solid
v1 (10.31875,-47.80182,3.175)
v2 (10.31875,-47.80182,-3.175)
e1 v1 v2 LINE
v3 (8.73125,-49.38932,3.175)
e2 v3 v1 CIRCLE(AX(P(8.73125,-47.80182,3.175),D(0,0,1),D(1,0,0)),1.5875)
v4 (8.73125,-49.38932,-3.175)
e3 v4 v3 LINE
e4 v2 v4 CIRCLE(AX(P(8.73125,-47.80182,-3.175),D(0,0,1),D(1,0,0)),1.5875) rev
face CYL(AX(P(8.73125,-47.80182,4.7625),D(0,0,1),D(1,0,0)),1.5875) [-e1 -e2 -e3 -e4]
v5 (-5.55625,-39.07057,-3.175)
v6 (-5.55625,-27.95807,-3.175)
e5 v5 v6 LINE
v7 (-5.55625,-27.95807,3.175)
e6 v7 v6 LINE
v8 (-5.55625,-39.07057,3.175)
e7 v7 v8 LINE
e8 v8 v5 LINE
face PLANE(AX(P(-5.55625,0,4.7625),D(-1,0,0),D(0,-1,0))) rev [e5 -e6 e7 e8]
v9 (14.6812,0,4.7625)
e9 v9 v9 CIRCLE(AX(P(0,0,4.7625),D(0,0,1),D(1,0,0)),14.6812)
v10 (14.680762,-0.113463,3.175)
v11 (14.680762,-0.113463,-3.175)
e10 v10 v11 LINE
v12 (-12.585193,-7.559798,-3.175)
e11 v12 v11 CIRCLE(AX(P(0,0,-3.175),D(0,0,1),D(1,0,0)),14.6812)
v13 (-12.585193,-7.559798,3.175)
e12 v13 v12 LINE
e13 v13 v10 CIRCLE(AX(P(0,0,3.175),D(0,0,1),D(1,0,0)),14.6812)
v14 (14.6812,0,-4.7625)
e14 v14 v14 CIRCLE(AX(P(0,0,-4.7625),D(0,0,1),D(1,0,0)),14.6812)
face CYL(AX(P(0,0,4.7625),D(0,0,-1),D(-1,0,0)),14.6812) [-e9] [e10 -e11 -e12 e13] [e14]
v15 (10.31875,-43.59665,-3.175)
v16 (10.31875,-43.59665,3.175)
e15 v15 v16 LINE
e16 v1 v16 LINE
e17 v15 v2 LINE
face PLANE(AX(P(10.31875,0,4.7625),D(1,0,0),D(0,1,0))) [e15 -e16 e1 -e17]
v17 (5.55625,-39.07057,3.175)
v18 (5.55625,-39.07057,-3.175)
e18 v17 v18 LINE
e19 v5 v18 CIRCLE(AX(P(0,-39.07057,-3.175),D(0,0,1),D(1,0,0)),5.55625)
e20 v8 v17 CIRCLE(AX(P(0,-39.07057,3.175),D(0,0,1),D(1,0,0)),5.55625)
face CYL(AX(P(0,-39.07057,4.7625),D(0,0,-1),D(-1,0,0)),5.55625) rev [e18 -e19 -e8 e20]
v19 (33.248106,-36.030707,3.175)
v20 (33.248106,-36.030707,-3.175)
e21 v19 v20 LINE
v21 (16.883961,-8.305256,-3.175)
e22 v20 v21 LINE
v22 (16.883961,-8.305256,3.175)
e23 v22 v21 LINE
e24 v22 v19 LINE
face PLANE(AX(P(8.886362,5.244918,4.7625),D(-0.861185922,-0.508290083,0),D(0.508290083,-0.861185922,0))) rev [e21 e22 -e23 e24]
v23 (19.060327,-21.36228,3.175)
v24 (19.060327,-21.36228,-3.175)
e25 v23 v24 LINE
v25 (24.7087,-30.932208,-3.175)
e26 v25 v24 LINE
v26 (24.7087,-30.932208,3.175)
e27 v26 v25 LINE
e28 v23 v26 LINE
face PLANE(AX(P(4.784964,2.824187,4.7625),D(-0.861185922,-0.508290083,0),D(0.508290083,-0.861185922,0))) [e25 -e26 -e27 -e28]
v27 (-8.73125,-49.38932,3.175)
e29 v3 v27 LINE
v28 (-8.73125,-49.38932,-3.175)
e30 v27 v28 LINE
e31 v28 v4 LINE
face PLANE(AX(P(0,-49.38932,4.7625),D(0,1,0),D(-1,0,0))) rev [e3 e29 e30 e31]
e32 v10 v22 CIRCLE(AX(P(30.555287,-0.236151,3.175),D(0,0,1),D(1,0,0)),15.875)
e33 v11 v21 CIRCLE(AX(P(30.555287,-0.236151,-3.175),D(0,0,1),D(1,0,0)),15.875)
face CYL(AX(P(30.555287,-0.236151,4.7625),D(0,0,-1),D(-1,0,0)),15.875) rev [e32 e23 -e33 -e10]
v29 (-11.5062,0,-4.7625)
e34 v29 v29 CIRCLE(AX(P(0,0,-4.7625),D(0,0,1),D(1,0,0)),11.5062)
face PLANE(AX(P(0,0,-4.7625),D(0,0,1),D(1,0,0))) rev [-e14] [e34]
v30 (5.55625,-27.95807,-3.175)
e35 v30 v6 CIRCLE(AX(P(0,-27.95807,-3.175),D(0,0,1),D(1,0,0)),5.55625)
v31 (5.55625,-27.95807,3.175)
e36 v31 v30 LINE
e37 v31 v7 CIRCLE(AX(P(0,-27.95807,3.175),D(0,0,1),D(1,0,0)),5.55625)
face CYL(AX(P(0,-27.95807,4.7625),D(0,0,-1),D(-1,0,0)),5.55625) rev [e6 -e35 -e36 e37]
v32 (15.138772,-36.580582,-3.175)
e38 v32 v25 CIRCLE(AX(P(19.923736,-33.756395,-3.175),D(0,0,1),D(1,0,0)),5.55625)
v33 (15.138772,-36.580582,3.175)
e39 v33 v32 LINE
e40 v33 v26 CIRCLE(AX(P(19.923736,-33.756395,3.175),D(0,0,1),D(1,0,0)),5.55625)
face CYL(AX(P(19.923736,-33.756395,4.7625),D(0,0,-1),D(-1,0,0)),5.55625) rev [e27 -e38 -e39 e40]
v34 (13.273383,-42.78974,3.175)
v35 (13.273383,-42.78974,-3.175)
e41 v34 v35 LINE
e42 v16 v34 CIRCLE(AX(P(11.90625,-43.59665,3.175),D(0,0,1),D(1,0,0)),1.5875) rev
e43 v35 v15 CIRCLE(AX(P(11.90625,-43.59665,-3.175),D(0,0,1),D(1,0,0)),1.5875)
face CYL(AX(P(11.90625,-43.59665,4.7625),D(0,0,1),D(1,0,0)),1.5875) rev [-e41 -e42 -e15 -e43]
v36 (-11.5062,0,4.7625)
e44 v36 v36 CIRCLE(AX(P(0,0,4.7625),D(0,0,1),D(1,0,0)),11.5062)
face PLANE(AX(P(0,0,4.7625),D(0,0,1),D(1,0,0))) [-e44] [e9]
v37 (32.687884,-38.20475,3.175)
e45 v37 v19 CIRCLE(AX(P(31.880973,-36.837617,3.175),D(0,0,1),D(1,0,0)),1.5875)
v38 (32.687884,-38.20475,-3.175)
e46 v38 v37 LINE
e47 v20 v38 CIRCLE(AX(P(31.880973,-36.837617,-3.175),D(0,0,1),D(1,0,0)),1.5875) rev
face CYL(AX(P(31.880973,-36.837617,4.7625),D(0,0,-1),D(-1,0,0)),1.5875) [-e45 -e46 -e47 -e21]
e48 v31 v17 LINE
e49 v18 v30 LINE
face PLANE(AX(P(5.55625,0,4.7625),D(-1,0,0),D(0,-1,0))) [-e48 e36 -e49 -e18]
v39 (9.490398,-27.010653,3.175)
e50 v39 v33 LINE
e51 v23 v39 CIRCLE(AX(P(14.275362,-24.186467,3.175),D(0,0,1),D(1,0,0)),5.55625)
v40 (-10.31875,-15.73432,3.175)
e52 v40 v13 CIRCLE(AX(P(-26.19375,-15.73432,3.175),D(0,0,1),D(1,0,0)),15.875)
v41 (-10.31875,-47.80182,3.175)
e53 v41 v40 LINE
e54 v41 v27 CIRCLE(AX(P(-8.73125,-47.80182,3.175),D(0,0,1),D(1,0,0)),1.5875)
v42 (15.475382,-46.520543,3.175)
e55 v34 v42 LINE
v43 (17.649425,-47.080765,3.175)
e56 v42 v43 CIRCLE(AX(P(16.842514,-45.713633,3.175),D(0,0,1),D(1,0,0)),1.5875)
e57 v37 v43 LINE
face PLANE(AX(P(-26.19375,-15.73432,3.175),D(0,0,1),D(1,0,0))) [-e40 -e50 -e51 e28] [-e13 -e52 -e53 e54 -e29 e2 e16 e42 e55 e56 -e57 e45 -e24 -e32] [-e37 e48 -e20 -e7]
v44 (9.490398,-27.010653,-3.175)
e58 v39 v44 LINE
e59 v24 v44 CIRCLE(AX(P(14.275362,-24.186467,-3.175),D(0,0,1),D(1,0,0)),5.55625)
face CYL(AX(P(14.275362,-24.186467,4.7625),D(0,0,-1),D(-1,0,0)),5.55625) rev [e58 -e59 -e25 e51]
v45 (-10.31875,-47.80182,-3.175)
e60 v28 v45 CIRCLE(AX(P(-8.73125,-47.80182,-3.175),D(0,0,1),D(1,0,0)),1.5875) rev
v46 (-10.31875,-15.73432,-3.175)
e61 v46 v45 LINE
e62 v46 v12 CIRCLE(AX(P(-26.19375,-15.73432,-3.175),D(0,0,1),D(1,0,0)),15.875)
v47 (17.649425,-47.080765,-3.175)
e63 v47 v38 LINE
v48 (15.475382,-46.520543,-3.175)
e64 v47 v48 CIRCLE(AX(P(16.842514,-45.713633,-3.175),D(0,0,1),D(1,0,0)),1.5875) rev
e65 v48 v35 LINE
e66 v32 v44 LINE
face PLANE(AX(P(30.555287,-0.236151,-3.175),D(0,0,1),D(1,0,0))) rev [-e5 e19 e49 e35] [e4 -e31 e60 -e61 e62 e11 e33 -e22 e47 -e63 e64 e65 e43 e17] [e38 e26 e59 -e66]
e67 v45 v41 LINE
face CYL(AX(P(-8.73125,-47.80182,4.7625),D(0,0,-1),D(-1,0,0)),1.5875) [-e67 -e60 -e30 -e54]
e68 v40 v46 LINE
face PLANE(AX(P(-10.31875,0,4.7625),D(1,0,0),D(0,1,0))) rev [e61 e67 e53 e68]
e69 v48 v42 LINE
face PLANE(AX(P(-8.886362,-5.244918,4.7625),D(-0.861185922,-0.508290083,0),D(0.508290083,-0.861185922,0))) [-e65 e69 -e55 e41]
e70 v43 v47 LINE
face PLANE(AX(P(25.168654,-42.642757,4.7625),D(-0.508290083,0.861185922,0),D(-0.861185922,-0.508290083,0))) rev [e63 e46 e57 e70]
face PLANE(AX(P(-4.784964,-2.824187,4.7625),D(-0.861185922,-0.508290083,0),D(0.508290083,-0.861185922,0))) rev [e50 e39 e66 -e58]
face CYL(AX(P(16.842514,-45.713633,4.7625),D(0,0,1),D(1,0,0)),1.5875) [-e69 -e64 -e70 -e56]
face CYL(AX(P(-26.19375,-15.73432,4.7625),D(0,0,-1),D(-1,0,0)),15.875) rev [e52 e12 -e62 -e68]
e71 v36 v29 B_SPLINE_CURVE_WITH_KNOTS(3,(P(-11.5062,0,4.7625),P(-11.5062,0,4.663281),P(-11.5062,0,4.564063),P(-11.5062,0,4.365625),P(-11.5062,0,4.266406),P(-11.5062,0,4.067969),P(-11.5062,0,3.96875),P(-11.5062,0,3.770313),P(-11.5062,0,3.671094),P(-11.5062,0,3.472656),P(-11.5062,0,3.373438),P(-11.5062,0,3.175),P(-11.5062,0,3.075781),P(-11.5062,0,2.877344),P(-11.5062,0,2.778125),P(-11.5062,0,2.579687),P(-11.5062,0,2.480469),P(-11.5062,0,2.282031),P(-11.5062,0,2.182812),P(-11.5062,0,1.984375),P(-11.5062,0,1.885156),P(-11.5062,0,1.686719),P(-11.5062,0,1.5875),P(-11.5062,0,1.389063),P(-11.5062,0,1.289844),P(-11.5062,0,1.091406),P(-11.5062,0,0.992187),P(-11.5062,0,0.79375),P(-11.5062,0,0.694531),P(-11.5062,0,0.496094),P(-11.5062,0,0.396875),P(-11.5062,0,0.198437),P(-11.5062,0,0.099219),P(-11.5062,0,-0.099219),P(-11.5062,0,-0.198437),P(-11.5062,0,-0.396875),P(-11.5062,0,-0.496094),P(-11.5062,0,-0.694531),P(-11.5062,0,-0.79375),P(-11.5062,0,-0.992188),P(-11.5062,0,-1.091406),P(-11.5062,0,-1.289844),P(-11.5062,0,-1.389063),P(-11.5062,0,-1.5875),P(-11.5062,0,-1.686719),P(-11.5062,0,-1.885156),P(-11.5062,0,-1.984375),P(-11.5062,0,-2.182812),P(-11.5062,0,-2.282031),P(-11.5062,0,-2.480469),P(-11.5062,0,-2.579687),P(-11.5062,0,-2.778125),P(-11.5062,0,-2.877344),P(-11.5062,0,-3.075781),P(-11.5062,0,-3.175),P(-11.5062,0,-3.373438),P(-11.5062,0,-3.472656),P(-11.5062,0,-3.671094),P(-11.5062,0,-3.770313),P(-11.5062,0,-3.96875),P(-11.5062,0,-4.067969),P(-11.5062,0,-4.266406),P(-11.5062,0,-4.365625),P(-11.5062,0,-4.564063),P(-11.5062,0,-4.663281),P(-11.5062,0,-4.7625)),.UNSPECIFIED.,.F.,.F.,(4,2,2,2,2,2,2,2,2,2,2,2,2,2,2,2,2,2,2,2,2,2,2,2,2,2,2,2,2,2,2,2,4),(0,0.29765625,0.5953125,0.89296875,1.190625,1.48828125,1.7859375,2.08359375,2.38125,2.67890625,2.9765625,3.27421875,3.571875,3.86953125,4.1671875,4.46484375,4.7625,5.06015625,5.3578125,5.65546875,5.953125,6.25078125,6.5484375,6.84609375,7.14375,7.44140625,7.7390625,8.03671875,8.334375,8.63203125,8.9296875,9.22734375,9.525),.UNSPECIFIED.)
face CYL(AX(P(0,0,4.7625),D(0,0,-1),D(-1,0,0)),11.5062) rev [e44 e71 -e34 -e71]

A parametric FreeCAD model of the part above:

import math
import FreeCAD as App
import Part
import Sketcher
from FreeCAD import Vector
Q = App.Units.Quantity


def edges_at(feature, points):
    """Names of the edges that pass closest to the given points."""
    edges = feature.Shape.Edges
    near = lambda p: min(range(len(edges)), key=lambda i: edges[i].distToShape(Part.Vertex(*p))[0])
    return sorted({f"Edge{near(p) + 1}" for p in points})

doc = App.newDocument("Part")
body = doc.addObject("PartDesign::Body", "Body")

# Sketch on XY plane
sketch1 = body.newObject("Sketcher::SketchObject", "Sketch")
sketch1.AttachmentSupport = (doc.getObject("XY_Plane"), [""])
sketch1.MapMode = "FlatFace"
sketch1.addGeometry([
    Part.ArcOfCircle(Part.Circle(Vector(-26.19375, -15.73432, 0), Vector(0, 0, 1), 15.875), math.radians(0), math.radians(30.992811)),  # 0
    Part.LineSegment(Vector(-10.31875, -15.73432, 0), Vector(-10.31875, -49.38932, 0)),  # 1
    Part.LineSegment(Vector(-10.31875, -49.38932, 0), Vector(10.31875, -49.38932, 0)),  # 2
    Part.LineSegment(Vector(10.31875, -49.38932, 0), Vector(10.31875, -37.783763, 0)),  # 3
    Part.LineSegment(Vector(10.31875, -37.783763, 0), Vector(16.282292, -47.887676, 0)),  # 4
    Part.LineSegment(Vector(16.282292, -47.887676, 0), Vector(34.055017, -37.397839, 0)),  # 5
    Part.LineSegment(Vector(34.055017, -37.397839, 0), Vector(16.883961, -8.305256, 0)),  # 6
    Part.ArcOfCircle(Part.Circle(Vector(30.555287, -0.236151, 0), Vector(0, 0, 1), 15.875), math.radians(179.557189), math.radians(210.55)),  # 7
    Part.ArcOfCircle(Part.Circle(Vector(0, 0, 0), Vector(0, 0, 1), 14.6812), math.radians(-0.442811), math.radians(210.992811)),  # 8
    Part.LineSegment(Vector(5.55625, -27.95807, 0), Vector(5.55625, -39.07057, 0)),  # 9
    Part.ArcOfCircle(Part.Circle(Vector(0, -39.07057, 0), Vector(0, 0, 1), 5.55625), math.radians(180), math.radians(360)),  # 10
    Part.LineSegment(Vector(-5.55625, -39.07057, 0), Vector(-5.55625, -27.95807, 0)),  # 11
    Part.ArcOfCircle(Part.Circle(Vector(0, -27.95807, 0), Vector(0, 0, 1), 5.55625), math.radians(0), math.radians(180)),  # 12
    Part.LineSegment(Vector(19.060327, -21.36228, 0), Vector(24.7087, -30.932208, 0)),  # 13
    Part.ArcOfCircle(Part.Circle(Vector(19.923736, -33.756395, 0), Vector(0, 0, 1), 5.55625), math.radians(-149.45), math.radians(30.55)),  # 14
    Part.LineSegment(Vector(15.138772, -36.580582, 0), Vector(9.490398, -27.010653, 0)),  # 15
    Part.ArcOfCircle(Part.Circle(Vector(14.275362, -24.186467, 0), Vector(0, 0, 1), 5.55625), math.radians(30.55), math.radians(210.55)),  # 16
    Part.Circle(Vector(0, 0, 0), Vector(0, 0, 1), 11.5062),  # 17
], False)
sketch1.addConstraint([
    Sketcher.Constraint("Tangent", 0, 1, 1, 1),
    Sketcher.Constraint("Coincident", 1, 2, 2, 1),
    Sketcher.Constraint("Coincident", 2, 2, 3, 1),
    Sketcher.Constraint("Coincident", 3, 2, 4, 1),
    Sketcher.Constraint("Coincident", 4, 2, 5, 1),
    Sketcher.Constraint("Coincident", 5, 2, 6, 1),
    Sketcher.Constraint("Tangent", 6, 2, 7, 2),
    Sketcher.Constraint("Tangent", 7, 1, 8, 1),
    Sketcher.Constraint("Tangent", 8, 2, 0, 2),
    Sketcher.Constraint("Tangent", 9, 2, 10, 2),
    Sketcher.Constraint("Tangent", 10, 1, 11, 1),
    Sketcher.Constraint("Tangent", 11, 2, 12, 2),
    Sketcher.Constraint("Tangent", 12, 1, 9, 1),
    Sketcher.Constraint("Tangent", 13, 2, 14, 2),
    Sketcher.Constraint("Tangent", 14, 1, 15, 1),
    Sketcher.Constraint("Tangent", 15, 2, 16, 2),
    Sketcher.Constraint("Tangent", 16, 1, 13, 1),
    Sketcher.Constraint("Vertical", 1),
    Sketcher.Constraint("Horizontal", 2),
    Sketcher.Constraint("Vertical", 3),
    Sketcher.Constraint("Vertical", 9),
    Sketcher.Constraint("Vertical", 11),
    Sketcher.Constraint("Coincident", 8, 3, -1, 1),
    Sketcher.Constraint("Coincident", 17, 3, -1, 1),
    Sketcher.Constraint("Equal", 0, 7),
    Sketcher.Constraint("Equal", 12, 14),
    Sketcher.Constraint("Equal", 14, 16),
    Sketcher.Constraint("PointOnObject", 10, 3, -2),
    Sketcher.Constraint("Perpendicular", 4, 5),
    Sketcher.Constraint("Perpendicular", 5, 6),
    Sketcher.Constraint("Parallel", 6, 13),
    Sketcher.Constraint("Diameter", 17, Q("0.906 in")),
    Sketcher.Constraint("Radius", 0, Q("0.625 in")),
    Sketcher.Constraint("Radius", 8, Q("0.578 in")),
    Sketcher.Constraint("Radius", 10, Q("0.21875 in")),
    Sketcher.Constraint("Distance", 6, Q("1.33 in")),
    Sketcher.Constraint("DistanceX", 2, 1, 2, 2, Q("0.8125 in")),
    Sketcher.Constraint("DistanceY", 1, 2, 1, 1, Q("1.325 in")),
    Sketcher.Constraint("DistanceY", 9, 2, 9, 1, Q("0.4375 in")),
    Sketcher.Constraint("Angle", 4, Q("-59.45 deg")),
    Sketcher.Constraint("Distance", 5, Q("0.8125 in")),
    Sketcher.Constraint("Distance", 13, Q("0.4375 in")),
    Sketcher.Constraint("DistanceX", 0, 3, -1, 1, Q("1.03125 in")),
    Sketcher.Constraint("DistanceY", 1, 2, 10, 3, Q("0.40625 in")),
    Sketcher.Constraint("DistanceY", 12, 1, 15, 2, Q("0.0372999 in")),
    Sketcher.Constraint("DistanceX", -1, 1, 13, 2, 24.7087),
    Sketcher.Constraint("DistanceY", 3, 1, 3, 2, 11.605556),
])
pad1 = body.newObject("PartDesign::Pad", "Pad")
pad1.Profile = sketch1
pad1.Length = Q("0.375 in")
pad1.Midplane = True

# Sketch on XY plane
sketch2 = body.newObject("Sketcher::SketchObject", "Sketch001")
sketch2.AttachmentSupport = (doc.getObject("XY_Plane"), [""])
sketch2.MapMode = "FlatFace"
sketch2.AttachmentOffset = App.Placement(Vector(0, 0, 0.1875 * 25.4), App.Rotation())
sketch2.addGeometry([
    Part.ArcOfCircle(Part.Circle(Vector(0, 0, 0), Vector(0, 0, 1), 14.6812), math.radians(-149.007189), math.radians(-0.442811)),  # 0
    Part.ArcOfCircle(Part.Circle(Vector(-26.19375, -15.73432, 0), Vector(0, 0, 1), 15.875), math.radians(0), math.radians(30.992811)),  # 1
    Part.LineSegment(Vector(-10.31875, -15.73432, 0), Vector(-10.31875, -49.38932, 0)),  # 2
    Part.LineSegment(Vector(-10.31875, -49.38932, 0), Vector(10.31875, -49.38932, 0)),  # 3
    Part.LineSegment(Vector(10.31875, -49.38932, 0), Vector(10.31875, -37.783763, 0)),  # 4
    Part.LineSegment(Vector(10.31875, -37.783763, 0), Vector(16.282292, -47.887676, 0)),  # 5
    Part.LineSegment(Vector(16.282292, -47.887676, 0), Vector(34.055017, -37.397839, 0)),  # 6
    Part.LineSegment(Vector(34.055017, -37.397839, 0), Vector(16.883961, -8.305256, 0)),  # 7
    Part.ArcOfCircle(Part.Circle(Vector(30.555287, -0.236151, 0), Vector(0, 0, 1), 15.875), math.radians(179.557189), math.radians(210.55)),  # 8
    Part.LineSegment(Vector(5.55625, -27.95807, 0), Vector(5.55625, -39.07057, 0)),  # 9
    Part.ArcOfCircle(Part.Circle(Vector(0, -39.07057, 0), Vector(0, 0, 1), 5.55625), math.radians(180), math.radians(360)),  # 10
    Part.LineSegment(Vector(-5.55625, -39.07057, 0), Vector(-5.55625, -27.95807, 0)),  # 11
    Part.ArcOfCircle(Part.Circle(Vector(0, -27.95807, 0), Vector(0, 0, 1), 5.55625), math.radians(0), math.radians(180)),  # 12
    Part.LineSegment(Vector(19.060327, -21.36228, 0), Vector(24.7087, -30.932208, 0)),  # 13
    Part.ArcOfCircle(Part.Circle(Vector(19.923736, -33.756395, 0), Vector(0, 0, 1), 5.55625), math.radians(-149.45), math.radians(30.55)),  # 14
    Part.LineSegment(Vector(15.138772, -36.580582, 0), Vector(9.490398, -27.010653, 0)),  # 15
    Part.ArcOfCircle(Part.Circle(Vector(14.275362, -24.186467, 0), Vector(0, 0, 1), 5.55625), math.radians(30.55), math.radians(210.55)),  # 16
], False)
sketch2.addConstraint([
    Sketcher.Constraint("Tangent", 0, 1, 1, 2),
    Sketcher.Constraint("Tangent", 1, 1, 2, 1),
    Sketcher.Constraint("Coincident", 2, 2, 3, 1),
    Sketcher.Constraint("Coincident", 3, 2, 4, 1),
    Sketcher.Constraint("Coincident", 4, 2, 5, 1),
    Sketcher.Constraint("Coincident", 5, 2, 6, 1),
    Sketcher.Constraint("Coincident", 6, 2, 7, 1),
    Sketcher.Constraint("Tangent", 7, 2, 8, 2),
    Sketcher.Constraint("Tangent", 8, 1, 0, 2),
    Sketcher.Constraint("Tangent", 9, 2, 10, 2),
    Sketcher.Constraint("Tangent", 10, 1, 11, 1),
    Sketcher.Constraint("Tangent", 11, 2, 12, 2),
    Sketcher.Constraint("Tangent", 12, 1, 9, 1),
    Sketcher.Constraint("Tangent", 13, 2, 14, 2),
    Sketcher.Constraint("Tangent", 14, 1, 15, 1),
    Sketcher.Constraint("Tangent", 15, 2, 16, 2),
    Sketcher.Constraint("Tangent", 16, 1, 13, 1),
    Sketcher.Constraint("Vertical", 2),
    Sketcher.Constraint("Horizontal", 3),
    Sketcher.Constraint("Vertical", 4),
    Sketcher.Constraint("Vertical", 9),
    Sketcher.Constraint("Vertical", 11),
    Sketcher.Constraint("Coincident", 0, 3, -1, 1),
    Sketcher.Constraint("Equal", 1, 8),
    Sketcher.Constraint("Equal", 12, 14),
    Sketcher.Constraint("Equal", 14, 16),
    Sketcher.Constraint("PointOnObject", 10, 3, -2),
    Sketcher.Constraint("Perpendicular", 5, 6),
    Sketcher.Constraint("Perpendicular", 6, 7),
    Sketcher.Constraint("Parallel", 7, 13),
    Sketcher.Constraint("Radius", 0, Q("0.578 in")),
    Sketcher.Constraint("Radius", 1, Q("0.625 in")),
    Sketcher.Constraint("Radius", 10, Q("0.21875 in")),
    Sketcher.Constraint("Distance", 7, Q("1.33 in")),
    Sketcher.Constraint("DistanceX", 3, 1, 3, 2, Q("0.8125 in")),
    Sketcher.Constraint("DistanceY", 2, 2, 2, 1, Q("1.325 in")),
    Sketcher.Constraint("DistanceY", 9, 2, 9, 1, Q("0.4375 in")),
    Sketcher.Constraint("Angle", 5, Q("-59.45 deg")),
    Sketcher.Constraint("Distance", 6, Q("0.8125 in")),
    Sketcher.Constraint("Distance", 13, Q("0.4375 in")),
    Sketcher.Constraint("DistanceX", 1, 3, -1, 1, Q("1.03125 in")),
    Sketcher.Constraint("DistanceY", 2, 2, 10, 3, Q("0.40625 in")),
    Sketcher.Constraint("DistanceY", 12, 1, 15, 2, Q("0.0372999 in")),
    Sketcher.Constraint("DistanceX", -1, 1, 13, 2, 24.7087),
    Sketcher.Constraint("DistanceY", 4, 1, 4, 2, 11.605556),
])
pocket1 = body.newObject("PartDesign::Pocket", "Pocket")
pocket1.Profile = sketch2
pocket1.Length = Q("0.0625 in")

# Sketch on XY plane
sketch3 = body.newObject("Sketcher::SketchObject", "Sketch002")
sketch3.AttachmentSupport = (doc.getObject("XY_Plane"), [""])
sketch3.MapMode = "FlatFace"
sketch3.AttachmentOffset = App.Placement(Vector(0, 0, -0.125 * 25.4), App.Rotation())
sketch3.addGeometry([
    Part.ArcOfCircle(Part.Circle(Vector(0, 0, 0), Vector(0, 0, 1), 14.6812), math.radians(-149.007189), math.radians(-0.442811)),  # 0
    Part.ArcOfCircle(Part.Circle(Vector(-26.19375, -15.73432, 0), Vector(0, 0, 1), 15.875), math.radians(0), math.radians(30.992811)),  # 1
    Part.LineSegment(Vector(-10.31875, -15.73432, 0), Vector(-10.31875, -49.38932, 0)),  # 2
    Part.LineSegment(Vector(-10.31875, -49.38932, 0), Vector(10.31875, -49.38932, 0)),  # 3
    Part.LineSegment(Vector(10.31875, -49.38932, 0), Vector(10.31875, -37.783763, 0)),  # 4
    Part.LineSegment(Vector(10.31875, -37.783763, 0), Vector(16.282292, -47.887676, 0)),  # 5
    Part.LineSegment(Vector(16.282292, -47.887676, 0), Vector(34.055017, -37.397839, 0)),  # 6
    Part.LineSegment(Vector(34.055017, -37.397839, 0), Vector(16.883961, -8.305256, 0)),  # 7
    Part.ArcOfCircle(Part.Circle(Vector(30.555287, -0.236151, 0), Vector(0, 0, 1), 15.875), math.radians(179.557189), math.radians(210.55)),  # 8
    Part.LineSegment(Vector(5.55625, -27.95807, 0), Vector(5.55625, -39.07057, 0)),  # 9
    Part.ArcOfCircle(Part.Circle(Vector(0, -39.07057, 0), Vector(0, 0, 1), 5.55625), math.radians(180), math.radians(360)),  # 10
    Part.LineSegment(Vector(-5.55625, -39.07057, 0), Vector(-5.55625, -27.95807, 0)),  # 11
    Part.ArcOfCircle(Part.Circle(Vector(0, -27.95807, 0), Vector(0, 0, 1), 5.55625), math.radians(0), math.radians(180)),  # 12
    Part.LineSegment(Vector(19.060327, -21.36228, 0), Vector(24.7087, -30.932208, 0)),  # 13
    Part.ArcOfCircle(Part.Circle(Vector(19.923736, -33.756395, 0), Vector(0, 0, 1), 5.55625), math.radians(-149.45), math.radians(30.55)),  # 14
    Part.LineSegment(Vector(15.138772, -36.580582, 0), Vector(9.490398, -27.010653, 0)),  # 15
    Part.ArcOfCircle(Part.Circle(Vector(14.275362, -24.186467, 0), Vector(0, 0, 1), 5.55625), math.radians(30.55), math.radians(210.55)),  # 16
], False)
sketch3.addConstraint([
    Sketcher.Constraint("Tangent", 0, 1, 1, 2),
    Sketcher.Constraint("Tangent", 1, 1, 2, 1),
    Sketcher.Constraint("Coincident", 2, 2, 3, 1),
    Sketcher.Constraint("Coincident", 3, 2, 4, 1),
    Sketcher.Constraint("Coincident", 4, 2, 5, 1),
    Sketcher.Constraint("Coincident", 5, 2, 6, 1),
    Sketcher.Constraint("Coincident", 6, 2, 7, 1),
    Sketcher.Constraint("Tangent", 7, 2, 8, 2),
    Sketcher.Constraint("Tangent", 8, 1, 0, 2),
    Sketcher.Constraint("Tangent", 9, 2, 10, 2),
    Sketcher.Constraint("Tangent", 10, 1, 11, 1),
    Sketcher.Constraint("Tangent", 11, 2, 12, 2),
    Sketcher.Constraint("Tangent", 12, 1, 9, 1),
    Sketcher.Constraint("Tangent", 13, 2, 14, 2),
    Sketcher.Constraint("Tangent", 14, 1, 15, 1),
    Sketcher.Constraint("Tangent", 15, 2, 16, 2),
    Sketcher.Constraint("Tangent", 16, 1, 13, 1),
    Sketcher.Constraint("Vertical", 2),
    Sketcher.Constraint("Horizontal", 3),
    Sketcher.Constraint("Vertical", 4),
    Sketcher.Constraint("Vertical", 9),
    Sketcher.Constraint("Vertical", 11),
    Sketcher.Constraint("Coincident", 0, 3, -1, 1),
    Sketcher.Constraint("Equal", 1, 8),
    Sketcher.Constraint("Equal", 12, 14),
    Sketcher.Constraint("Equal", 14, 16),
    Sketcher.Constraint("PointOnObject", 10, 3, -2),
    Sketcher.Constraint("Perpendicular", 5, 6),
    Sketcher.Constraint("Perpendicular", 6, 7),
    Sketcher.Constraint("Parallel", 7, 13),
    Sketcher.Constraint("Radius", 0, Q("0.578 in")),
    Sketcher.Constraint("Radius", 1, Q("0.625 in")),
    Sketcher.Constraint("Radius", 10, Q("0.21875 in")),
    Sketcher.Constraint("Distance", 7, Q("1.33 in")),
    Sketcher.Constraint("DistanceX", 3, 1, 3, 2, Q("0.8125 in")),
    Sketcher.Constraint("DistanceY", 2, 2, 2, 1, Q("1.325 in")),
    Sketcher.Constraint("DistanceY", 9, 2, 9, 1, Q("0.4375 in")),
    Sketcher.Constraint("Angle", 5, Q("-59.45 deg")),
    Sketcher.Constraint("Distance", 6, Q("0.8125 in")),
    Sketcher.Constraint("Distance", 13, Q("0.4375 in")),
    Sketcher.Constraint("DistanceX", 1, 3, -1, 1, Q("1.03125 in")),
    Sketcher.Constraint("DistanceY", 2, 2, 10, 3, Q("0.40625 in")),
    Sketcher.Constraint("DistanceY", 12, 1, 15, 2, Q("0.0372999 in")),
    Sketcher.Constraint("DistanceX", -1, 1, 13, 2, 24.7087),
    Sketcher.Constraint("DistanceY", 4, 1, 4, 2, 11.605556),
])
pocket2 = body.newObject("PartDesign::Pocket", "Pocket001")
pocket2.Profile = sketch3
pocket2.Length = Q("0.0625 in")
doc.recompute()

fillet = body.newObject("PartDesign::Fillet", "Fillet")
fillet.Base = (pocket2, edges_at(pocket2, [
    (34.055, -37.398, 0),
    (16.282, -47.888, 0),
    (10.319, -37.784, 0),
    (10.319, -49.389, 0),
    (-10.319, -49.389, 0),
]))
fillet.Radius = Q("0.0625 in")

doc.recompute()
